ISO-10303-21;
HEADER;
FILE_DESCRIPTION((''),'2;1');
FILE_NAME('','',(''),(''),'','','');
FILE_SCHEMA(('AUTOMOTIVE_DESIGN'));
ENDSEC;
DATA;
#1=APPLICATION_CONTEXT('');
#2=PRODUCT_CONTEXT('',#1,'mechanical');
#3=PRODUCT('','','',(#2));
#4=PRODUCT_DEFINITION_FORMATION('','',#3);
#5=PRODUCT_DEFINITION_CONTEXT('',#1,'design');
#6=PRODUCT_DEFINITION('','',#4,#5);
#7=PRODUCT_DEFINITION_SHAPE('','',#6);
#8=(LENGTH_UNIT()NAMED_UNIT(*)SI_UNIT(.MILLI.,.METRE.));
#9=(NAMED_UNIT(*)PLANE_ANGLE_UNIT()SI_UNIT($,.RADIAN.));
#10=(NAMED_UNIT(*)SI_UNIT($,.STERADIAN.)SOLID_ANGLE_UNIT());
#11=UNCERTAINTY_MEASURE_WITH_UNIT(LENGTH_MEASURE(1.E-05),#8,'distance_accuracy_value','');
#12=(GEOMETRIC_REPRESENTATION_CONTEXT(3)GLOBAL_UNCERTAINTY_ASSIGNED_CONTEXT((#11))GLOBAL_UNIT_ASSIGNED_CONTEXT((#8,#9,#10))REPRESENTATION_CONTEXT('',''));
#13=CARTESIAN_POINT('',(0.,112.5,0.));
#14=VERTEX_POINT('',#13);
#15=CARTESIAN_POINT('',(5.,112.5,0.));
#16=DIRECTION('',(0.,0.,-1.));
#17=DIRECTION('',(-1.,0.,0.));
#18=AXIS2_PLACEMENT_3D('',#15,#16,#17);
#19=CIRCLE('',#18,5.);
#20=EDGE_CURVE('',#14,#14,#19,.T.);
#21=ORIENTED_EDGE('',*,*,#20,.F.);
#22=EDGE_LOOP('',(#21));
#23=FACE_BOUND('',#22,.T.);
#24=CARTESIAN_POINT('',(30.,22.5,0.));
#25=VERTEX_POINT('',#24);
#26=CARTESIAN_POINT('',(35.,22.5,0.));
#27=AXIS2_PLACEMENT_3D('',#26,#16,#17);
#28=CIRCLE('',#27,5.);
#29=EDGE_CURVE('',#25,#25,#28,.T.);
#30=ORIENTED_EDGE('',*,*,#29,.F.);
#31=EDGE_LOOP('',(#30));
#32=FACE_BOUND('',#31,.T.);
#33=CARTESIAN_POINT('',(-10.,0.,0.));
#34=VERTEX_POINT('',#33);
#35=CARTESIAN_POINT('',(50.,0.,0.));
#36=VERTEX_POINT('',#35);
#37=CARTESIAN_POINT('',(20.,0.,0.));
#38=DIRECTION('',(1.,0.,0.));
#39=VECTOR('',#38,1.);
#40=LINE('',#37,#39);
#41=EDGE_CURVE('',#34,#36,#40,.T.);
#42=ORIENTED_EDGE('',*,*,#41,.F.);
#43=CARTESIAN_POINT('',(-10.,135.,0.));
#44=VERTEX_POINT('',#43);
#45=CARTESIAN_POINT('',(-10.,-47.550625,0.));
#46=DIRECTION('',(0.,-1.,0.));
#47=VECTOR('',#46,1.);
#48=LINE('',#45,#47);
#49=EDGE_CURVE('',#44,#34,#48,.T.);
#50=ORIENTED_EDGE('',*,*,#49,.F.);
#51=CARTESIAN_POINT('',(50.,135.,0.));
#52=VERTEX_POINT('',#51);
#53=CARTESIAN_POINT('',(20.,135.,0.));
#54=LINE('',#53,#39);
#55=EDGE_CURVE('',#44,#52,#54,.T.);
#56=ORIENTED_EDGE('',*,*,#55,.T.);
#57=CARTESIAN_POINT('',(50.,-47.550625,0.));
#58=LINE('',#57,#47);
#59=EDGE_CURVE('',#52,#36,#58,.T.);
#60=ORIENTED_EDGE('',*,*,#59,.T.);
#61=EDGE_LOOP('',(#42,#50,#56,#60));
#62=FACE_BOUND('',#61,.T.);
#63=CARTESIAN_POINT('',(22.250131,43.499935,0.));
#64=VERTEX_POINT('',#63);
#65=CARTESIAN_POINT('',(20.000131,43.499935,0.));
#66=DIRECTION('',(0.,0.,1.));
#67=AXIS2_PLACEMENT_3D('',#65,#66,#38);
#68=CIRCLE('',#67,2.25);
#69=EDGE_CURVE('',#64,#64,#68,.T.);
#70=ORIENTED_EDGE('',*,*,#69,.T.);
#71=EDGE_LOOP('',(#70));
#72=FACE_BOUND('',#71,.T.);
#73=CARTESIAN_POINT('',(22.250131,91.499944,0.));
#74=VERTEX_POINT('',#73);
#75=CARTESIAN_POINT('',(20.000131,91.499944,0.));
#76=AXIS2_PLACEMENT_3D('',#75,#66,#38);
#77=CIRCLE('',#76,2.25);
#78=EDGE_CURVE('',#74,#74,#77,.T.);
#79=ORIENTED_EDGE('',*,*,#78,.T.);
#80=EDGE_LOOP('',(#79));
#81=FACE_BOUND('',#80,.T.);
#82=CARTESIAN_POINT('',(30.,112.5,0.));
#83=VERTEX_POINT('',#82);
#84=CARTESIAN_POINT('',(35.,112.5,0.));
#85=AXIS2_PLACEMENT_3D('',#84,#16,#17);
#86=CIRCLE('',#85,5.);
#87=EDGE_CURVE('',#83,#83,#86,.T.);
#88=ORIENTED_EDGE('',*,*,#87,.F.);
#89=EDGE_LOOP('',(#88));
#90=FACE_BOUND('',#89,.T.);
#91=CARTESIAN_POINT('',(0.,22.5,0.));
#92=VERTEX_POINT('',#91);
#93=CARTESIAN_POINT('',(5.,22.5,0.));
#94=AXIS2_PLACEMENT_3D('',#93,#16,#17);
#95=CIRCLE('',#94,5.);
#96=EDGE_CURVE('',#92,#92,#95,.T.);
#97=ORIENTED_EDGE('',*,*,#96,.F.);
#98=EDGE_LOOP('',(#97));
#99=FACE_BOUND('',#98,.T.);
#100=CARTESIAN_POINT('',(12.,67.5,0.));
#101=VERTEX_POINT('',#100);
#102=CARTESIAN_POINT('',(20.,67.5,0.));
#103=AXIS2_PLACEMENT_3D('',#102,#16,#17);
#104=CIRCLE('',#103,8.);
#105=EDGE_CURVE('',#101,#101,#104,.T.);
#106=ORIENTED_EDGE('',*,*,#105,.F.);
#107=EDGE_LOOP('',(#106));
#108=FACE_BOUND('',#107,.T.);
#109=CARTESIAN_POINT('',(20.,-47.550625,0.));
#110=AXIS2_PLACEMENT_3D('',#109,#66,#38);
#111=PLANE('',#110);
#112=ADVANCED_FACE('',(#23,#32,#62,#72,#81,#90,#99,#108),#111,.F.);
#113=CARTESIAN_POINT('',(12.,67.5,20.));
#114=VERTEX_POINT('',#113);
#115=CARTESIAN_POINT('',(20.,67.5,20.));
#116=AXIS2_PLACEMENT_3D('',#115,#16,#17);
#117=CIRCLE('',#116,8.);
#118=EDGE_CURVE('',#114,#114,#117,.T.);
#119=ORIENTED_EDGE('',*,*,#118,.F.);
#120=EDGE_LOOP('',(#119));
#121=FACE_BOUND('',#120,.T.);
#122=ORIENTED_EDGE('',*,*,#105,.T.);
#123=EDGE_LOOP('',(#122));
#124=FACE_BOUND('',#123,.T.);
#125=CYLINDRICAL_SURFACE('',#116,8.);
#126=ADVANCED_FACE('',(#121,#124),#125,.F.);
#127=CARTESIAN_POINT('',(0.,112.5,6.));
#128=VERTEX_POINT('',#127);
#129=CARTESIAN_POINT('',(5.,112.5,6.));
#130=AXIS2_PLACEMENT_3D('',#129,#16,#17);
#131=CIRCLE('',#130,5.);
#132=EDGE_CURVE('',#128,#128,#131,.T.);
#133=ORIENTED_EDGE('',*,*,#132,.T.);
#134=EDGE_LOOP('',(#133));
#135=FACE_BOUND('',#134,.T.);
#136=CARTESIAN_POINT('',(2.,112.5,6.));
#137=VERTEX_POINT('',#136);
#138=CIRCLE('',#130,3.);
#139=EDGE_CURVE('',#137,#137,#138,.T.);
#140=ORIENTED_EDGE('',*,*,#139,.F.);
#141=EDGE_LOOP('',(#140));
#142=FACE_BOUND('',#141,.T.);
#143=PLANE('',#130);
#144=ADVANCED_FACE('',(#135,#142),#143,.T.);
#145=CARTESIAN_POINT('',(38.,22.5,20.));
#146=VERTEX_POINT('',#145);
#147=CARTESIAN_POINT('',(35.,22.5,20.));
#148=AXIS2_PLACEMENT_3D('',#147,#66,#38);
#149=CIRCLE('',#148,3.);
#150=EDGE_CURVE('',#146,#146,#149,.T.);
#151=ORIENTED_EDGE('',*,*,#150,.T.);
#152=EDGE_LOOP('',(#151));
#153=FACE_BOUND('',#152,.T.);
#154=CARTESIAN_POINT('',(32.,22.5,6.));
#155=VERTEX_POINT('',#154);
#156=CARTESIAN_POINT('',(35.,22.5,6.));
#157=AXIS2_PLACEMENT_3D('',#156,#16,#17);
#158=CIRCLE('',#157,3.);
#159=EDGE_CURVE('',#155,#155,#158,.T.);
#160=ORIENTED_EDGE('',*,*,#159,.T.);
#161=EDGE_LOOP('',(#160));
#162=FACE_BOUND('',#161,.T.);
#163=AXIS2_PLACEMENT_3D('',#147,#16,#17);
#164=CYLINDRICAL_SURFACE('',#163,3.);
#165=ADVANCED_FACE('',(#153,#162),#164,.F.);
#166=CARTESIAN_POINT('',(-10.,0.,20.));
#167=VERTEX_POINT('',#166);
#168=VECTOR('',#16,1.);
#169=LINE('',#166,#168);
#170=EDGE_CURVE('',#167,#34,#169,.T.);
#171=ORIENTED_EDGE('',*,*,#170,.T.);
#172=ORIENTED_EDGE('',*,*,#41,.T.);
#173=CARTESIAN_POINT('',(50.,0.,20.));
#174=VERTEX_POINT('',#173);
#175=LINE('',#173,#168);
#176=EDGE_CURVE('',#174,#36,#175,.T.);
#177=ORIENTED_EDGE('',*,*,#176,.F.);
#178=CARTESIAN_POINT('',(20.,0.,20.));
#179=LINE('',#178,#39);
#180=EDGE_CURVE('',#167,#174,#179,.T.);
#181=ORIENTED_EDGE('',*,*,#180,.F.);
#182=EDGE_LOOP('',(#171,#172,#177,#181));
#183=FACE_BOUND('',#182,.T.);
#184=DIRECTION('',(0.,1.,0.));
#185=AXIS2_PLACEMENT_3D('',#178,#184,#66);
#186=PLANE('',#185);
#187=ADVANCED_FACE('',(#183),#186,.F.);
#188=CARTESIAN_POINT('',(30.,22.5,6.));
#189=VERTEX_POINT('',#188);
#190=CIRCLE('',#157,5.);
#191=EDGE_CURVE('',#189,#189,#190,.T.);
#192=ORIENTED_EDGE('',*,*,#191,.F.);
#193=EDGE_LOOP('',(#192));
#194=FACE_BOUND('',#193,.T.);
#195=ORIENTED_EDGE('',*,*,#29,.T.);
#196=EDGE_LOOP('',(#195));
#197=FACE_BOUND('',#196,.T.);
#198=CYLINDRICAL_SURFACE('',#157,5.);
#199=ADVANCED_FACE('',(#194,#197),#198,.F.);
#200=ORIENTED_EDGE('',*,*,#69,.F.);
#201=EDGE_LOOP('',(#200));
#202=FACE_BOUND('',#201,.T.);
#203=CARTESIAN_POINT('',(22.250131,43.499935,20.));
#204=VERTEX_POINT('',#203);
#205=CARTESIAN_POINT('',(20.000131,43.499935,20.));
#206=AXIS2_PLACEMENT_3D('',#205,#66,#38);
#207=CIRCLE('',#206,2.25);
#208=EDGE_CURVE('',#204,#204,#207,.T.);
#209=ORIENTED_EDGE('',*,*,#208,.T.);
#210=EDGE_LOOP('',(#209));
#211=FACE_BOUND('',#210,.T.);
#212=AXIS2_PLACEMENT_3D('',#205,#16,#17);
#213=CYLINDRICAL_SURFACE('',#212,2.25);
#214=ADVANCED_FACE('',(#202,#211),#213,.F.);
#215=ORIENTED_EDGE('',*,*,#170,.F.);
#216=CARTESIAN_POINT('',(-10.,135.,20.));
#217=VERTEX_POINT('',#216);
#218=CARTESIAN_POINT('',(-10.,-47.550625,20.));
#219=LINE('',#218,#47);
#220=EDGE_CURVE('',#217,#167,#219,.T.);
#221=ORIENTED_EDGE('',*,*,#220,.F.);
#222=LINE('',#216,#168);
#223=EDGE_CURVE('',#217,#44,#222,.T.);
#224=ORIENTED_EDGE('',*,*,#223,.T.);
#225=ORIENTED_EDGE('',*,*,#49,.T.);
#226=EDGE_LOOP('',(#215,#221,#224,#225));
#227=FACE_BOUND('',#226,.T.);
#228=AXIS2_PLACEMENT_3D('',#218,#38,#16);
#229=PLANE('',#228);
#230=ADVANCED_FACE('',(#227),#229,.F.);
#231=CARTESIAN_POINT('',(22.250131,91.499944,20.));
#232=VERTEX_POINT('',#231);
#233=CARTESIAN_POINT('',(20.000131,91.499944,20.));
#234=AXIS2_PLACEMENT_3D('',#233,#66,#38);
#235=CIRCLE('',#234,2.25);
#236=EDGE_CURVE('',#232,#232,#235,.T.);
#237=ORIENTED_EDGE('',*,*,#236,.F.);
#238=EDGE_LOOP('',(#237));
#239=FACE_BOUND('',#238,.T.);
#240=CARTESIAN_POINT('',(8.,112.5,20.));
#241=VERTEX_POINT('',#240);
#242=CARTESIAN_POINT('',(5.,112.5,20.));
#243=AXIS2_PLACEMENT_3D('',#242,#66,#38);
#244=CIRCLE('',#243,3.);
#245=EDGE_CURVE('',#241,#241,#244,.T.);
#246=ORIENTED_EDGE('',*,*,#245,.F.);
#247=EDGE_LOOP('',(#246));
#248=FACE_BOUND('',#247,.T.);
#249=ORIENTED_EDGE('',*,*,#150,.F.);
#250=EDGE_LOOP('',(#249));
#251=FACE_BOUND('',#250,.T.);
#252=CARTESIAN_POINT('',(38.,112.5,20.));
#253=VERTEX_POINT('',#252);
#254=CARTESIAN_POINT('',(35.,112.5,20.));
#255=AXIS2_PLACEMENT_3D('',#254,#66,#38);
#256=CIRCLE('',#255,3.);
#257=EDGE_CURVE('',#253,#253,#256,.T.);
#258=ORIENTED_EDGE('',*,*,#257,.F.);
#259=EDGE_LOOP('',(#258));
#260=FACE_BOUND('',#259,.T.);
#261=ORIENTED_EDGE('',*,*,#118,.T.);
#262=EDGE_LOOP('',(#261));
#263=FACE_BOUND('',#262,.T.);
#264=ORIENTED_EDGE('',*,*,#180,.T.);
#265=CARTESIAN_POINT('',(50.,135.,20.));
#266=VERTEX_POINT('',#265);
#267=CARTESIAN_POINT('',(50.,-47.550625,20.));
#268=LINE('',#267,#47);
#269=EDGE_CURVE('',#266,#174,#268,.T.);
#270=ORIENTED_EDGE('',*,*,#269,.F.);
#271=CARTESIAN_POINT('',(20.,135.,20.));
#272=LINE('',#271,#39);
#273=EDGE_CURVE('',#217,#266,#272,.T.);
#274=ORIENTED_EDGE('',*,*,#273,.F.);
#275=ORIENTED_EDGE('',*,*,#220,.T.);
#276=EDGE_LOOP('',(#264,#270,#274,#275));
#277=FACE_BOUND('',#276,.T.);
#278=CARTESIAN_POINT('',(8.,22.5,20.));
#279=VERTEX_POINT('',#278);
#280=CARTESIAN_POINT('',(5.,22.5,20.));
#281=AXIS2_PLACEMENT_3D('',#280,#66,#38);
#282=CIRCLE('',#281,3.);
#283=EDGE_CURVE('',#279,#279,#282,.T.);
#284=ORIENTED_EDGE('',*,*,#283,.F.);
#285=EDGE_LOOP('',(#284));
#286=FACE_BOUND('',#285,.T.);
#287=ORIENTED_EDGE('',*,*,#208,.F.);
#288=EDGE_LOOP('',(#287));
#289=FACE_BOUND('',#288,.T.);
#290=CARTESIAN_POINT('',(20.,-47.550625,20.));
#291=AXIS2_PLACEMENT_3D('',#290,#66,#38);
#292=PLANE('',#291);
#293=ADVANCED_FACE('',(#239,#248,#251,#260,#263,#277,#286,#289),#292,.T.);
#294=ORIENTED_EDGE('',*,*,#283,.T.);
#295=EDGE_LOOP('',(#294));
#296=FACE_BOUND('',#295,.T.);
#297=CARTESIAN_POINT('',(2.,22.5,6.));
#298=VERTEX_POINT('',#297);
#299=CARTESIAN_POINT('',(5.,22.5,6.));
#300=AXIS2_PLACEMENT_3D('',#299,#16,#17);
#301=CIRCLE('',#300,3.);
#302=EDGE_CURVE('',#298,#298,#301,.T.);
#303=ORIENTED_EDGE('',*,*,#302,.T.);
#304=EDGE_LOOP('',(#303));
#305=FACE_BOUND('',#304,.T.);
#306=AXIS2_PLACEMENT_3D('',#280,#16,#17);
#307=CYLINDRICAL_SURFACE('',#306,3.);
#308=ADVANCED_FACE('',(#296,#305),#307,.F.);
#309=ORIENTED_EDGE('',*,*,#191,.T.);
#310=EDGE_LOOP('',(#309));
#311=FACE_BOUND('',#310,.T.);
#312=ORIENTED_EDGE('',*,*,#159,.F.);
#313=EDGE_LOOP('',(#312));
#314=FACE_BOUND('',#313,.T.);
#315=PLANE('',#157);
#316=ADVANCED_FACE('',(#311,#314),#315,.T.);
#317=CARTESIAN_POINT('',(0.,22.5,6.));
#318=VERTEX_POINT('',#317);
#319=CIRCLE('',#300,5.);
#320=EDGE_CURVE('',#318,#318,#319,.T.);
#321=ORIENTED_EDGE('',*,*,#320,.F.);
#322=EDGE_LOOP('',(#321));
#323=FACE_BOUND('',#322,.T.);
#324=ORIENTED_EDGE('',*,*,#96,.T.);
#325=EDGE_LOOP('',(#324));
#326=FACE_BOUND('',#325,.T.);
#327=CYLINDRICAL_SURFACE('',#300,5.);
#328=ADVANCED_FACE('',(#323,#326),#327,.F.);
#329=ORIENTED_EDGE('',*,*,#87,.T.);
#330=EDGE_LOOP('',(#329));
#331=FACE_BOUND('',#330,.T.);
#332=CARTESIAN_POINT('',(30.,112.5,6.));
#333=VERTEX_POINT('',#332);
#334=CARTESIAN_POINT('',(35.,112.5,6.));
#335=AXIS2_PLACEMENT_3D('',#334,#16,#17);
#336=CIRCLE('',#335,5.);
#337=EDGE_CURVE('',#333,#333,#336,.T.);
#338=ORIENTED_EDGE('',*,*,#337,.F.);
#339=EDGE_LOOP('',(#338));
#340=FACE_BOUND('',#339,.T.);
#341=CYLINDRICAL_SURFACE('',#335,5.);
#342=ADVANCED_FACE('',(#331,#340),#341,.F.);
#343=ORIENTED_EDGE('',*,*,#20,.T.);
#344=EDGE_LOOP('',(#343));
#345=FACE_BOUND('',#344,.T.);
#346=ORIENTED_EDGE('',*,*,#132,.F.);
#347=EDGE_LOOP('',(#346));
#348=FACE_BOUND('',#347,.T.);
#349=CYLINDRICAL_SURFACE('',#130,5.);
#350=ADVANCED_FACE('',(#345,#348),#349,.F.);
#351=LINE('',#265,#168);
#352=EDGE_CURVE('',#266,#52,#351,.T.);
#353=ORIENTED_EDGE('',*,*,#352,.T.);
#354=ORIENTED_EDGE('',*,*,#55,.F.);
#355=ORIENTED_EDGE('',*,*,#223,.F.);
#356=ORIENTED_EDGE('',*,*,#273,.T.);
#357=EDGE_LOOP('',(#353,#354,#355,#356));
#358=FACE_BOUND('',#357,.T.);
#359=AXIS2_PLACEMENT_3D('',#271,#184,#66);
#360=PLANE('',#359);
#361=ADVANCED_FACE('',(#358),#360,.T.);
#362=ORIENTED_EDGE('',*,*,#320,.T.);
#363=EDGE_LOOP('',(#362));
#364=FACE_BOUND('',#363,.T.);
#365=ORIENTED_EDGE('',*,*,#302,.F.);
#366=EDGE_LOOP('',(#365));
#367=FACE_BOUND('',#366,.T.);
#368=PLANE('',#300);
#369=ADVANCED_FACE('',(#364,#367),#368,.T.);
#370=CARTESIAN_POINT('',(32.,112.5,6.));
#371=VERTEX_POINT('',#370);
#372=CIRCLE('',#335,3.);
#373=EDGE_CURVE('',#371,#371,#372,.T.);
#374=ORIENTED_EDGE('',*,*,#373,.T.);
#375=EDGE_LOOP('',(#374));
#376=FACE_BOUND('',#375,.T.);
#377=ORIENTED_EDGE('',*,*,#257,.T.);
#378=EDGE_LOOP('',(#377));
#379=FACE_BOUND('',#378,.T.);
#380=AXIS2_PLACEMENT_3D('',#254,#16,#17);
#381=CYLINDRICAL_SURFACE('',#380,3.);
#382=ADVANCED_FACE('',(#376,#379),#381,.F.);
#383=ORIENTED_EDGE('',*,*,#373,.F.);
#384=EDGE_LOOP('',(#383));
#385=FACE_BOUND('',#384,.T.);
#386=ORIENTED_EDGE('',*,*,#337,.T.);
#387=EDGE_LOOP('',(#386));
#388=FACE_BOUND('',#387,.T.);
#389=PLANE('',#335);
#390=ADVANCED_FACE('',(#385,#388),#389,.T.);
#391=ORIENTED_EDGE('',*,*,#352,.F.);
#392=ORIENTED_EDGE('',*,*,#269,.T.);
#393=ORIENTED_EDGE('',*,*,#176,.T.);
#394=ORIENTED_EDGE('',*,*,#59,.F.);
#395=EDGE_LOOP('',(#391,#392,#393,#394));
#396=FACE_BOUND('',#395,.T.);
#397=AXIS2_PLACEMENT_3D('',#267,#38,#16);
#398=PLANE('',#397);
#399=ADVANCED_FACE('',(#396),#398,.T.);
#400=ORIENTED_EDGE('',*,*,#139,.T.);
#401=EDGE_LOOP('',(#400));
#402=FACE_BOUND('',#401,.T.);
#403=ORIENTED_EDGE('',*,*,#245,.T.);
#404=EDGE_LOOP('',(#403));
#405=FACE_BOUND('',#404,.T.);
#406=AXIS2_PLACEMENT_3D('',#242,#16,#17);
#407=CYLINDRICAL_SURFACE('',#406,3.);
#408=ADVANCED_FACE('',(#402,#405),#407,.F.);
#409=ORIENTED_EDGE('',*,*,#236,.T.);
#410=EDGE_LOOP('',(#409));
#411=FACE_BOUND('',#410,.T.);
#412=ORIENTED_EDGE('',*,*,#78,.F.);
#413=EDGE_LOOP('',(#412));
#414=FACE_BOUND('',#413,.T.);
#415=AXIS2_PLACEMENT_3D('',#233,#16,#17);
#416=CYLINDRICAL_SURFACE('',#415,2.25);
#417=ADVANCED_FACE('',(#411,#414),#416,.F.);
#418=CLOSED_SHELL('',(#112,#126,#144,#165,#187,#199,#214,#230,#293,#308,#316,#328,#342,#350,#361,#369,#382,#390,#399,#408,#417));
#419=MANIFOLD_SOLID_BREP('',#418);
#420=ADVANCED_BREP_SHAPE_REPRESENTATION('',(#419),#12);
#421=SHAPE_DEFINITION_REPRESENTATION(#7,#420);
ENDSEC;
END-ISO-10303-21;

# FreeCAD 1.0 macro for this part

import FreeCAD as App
import Part
import Sketcher

V = App.Vector
Q = App.Units.Quantity

doc = App.newDocument("Part")
body = doc.addObject("PartDesign::Body", "Body")

# Sketch on XY plane
sketch1 = body.newObject("Sketcher::SketchObject", "Sketch")
sketch1.AttachmentSupport = (doc.getObject("XY_Plane"), [""])
sketch1.MapMode = "FlatFace"
sketch1.addGeometry([
    Part.LineSegment(V(-10, 135, 0), V(-10, 0, 0)),  # 0
    Part.LineSegment(V(-10, 0, 0), V(50, 0, 0)),  # 1
    Part.LineSegment(V(50, 0, 0), V(50, 135, 0)),  # 2
    Part.LineSegment(V(50, 135, 0), V(-10, 135, 0)),  # 3
    Part.Circle(V(5, 22.5, 0), V(0, 0, 1), 3),  # 4
    Part.Circle(V(20.000131, 43.499935, 0), V(0, 0, 1), 2.25),  # 5
    Part.Circle(V(35, 22.5, 0), V(0, 0, 1), 3),  # 6
    Part.Circle(V(5, 112.5, 0), V(0, 0, 1), 3),  # 7
    Part.Circle(V(20.000131, 91.499944, 0), V(0, 0, 1), 2.25),  # 8
    Part.Circle(V(35, 112.5, 0), V(0, 0, 1), 3),  # 9
], False)
sketch1.addConstraint([
    Sketcher.Constraint("Coincident", 0, 2, 1, 1),
    Sketcher.Constraint("Coincident", 1, 2, 2, 1),
    Sketcher.Constraint("Coincident", 2, 2, 3, 1),
    Sketcher.Constraint("Coincident", 3, 2, 0, 1),
    Sketcher.Constraint("Vertical", 0),
    Sketcher.Constraint("Horizontal", 1),
    Sketcher.Constraint("Vertical", 2),
    Sketcher.Constraint("Horizontal", 3),
    Sketcher.Constraint("Equal", 4, 6),
    Sketcher.Constraint("Equal", 6, 7),
    Sketcher.Constraint("Equal", 5, 8),
    Sketcher.Constraint("Equal", 7, 9),
    Sketcher.Constraint("PointOnObject", 0, 2, -1),
    Sketcher.Constraint("Horizontal", 4, 3, 6, 3),
    Sketcher.Constraint("Horizontal", 7, 3, 9, 3),
    Sketcher.Constraint("Vertical", 4, 3, 7, 3),
    Sketcher.Constraint("Vertical", 5, 3, 8, 3),
    Sketcher.Constraint("Vertical", 6, 3, 9, 3),
    Sketcher.Constraint("Diameter", 4, Q("6 mm")),
    Sketcher.Constraint("Diameter", 5, Q("4.5 mm")),
    Sketcher.Constraint("DistanceX", 1, 1, 1, 2, Q("60 mm")),
    Sketcher.Constraint("DistanceY", 0, 2, 0, 1, Q("135 mm")),
    Sketcher.Constraint("DistanceX", -1, 1, 4, 3, Q("5 mm")),
    Sketcher.Constraint("DistanceX", -1, 1, 6, 3, Q("35 mm")),
    Sketcher.Constraint("DistanceX", 0, 2, -1, 1, Q("10 mm")),
    Sketcher.Constraint("DistanceY", 4, 3, 7, 3, Q("90 mm")),
    Sketcher.Constraint("DistanceY", -1, 1, 4, 3, Q("22.5 mm")),
    Sketcher.Constraint("DistanceX", -1, 1, 5, 3, Q("20.000131 mm")),
    Sketcher.Constraint("DistanceY", 5, 3, 8, 3, Q("48.000009 mm")),
    Sketcher.Constraint("DistanceY", -1, 1, 5, 3, Q("43.499935 mm")),
])
pad1 = body.newObject("PartDesign::Pad", "Pad")
pad1.Profile = sketch1
pad1.Length = 20

# Sketch on XY plane
sketch2 = body.newObject("Sketcher::SketchObject", "Sketch001")
sketch2.AttachmentSupport = (doc.getObject("XY_Plane"), [""])
sketch2.MapMode = "FlatFace"
sketch2.addGeometry([
    Part.Circle(V(35, 112.5, 0), V(0, 0, 1), 5),
    Part.Circle(V(5, 112.5, 0), V(0, 0, 1), 5),
    Part.Circle(V(35, 22.5, 0), V(0, 0, 1), 5),
    Part.Circle(V(5, 22.5, 0), V(0, 0, 1), 5),
], False)
sketch2.addConstraint([
    Sketcher.Constraint("Equal", 0, 1),
    Sketcher.Constraint("Equal", 1, 2),
    Sketcher.Constraint("Equal", 2, 3),
    Sketcher.Constraint("Horizontal", 0, 3, 1, 3),
    Sketcher.Constraint("Horizontal", 2, 3, 3, 3),
    Sketcher.Constraint("Vertical", 0, 3, 2, 3),
    Sketcher.Constraint("Vertical", 1, 3, 3, 3),
    Sketcher.Constraint("Diameter", 0, Q("10 mm")),
    Sketcher.Constraint("DistanceX", -1, 1, 0, 3, Q("35 mm")),
    Sketcher.Constraint("DistanceX", -1, 1, 1, 3, Q("5 mm")),
    Sketcher.Constraint("DistanceY", 2, 3, 0, 3, Q("90 mm")),
    Sketcher.Constraint("DistanceY", -1, 1, 0, 3, Q("112.5 mm")),
])
pocket1 = body.newObject("PartDesign::Pocket", "Pocket")
pocket1.Profile = sketch2
pocket1.Length = 6
pocket1.Reversed = True

# Sketch on XY plane
sketch3 = body.newObject("Sketcher::SketchObject", "Sketch002")
sketch3.AttachmentSupport = (doc.getObject("XY_Plane"), [""])
sketch3.MapMode = "FlatFace"
sketch3.addGeometry(Part.Circle(V(20, 67.5, 0), V(0, 0, 1), 8), False)
sketch3.addConstraint([
    Sketcher.Constraint("Diameter", 0, Q("16 mm")),
    Sketcher.Constraint("DistanceX", -1, 1, 0, 3, Q("20 mm")),
    Sketcher.Constraint("DistanceY", -1, 1, 0, 3, Q("67.5 mm")),
])
pocket2 = body.newObject("PartDesign::Pocket", "Pocket001")
pocket2.Profile = sketch3
pocket2.Length = 20
pocket2.Reversed = True

# Sketch on XY plane
sketch4 = body.newObject("Sketcher::SketchObject", "Sketch003")
sketch4.AttachmentSupport = (doc.getObject("XY_Plane"), [""])
sketch4.MapMode = "FlatFace"
sketch4.addGeometry([
    Part.LineSegment(V(50, 135, 0), V(50, 0, 0)),  # 0
    Part.LineSegment(V(50, 0, 0), V(40, 0, 0)),  # 1
    Part.LineSegment(V(40, 0, 0), V(40, 135, 0)),  # 2
    Part.LineSegment(V(40, 135, 0), V(50, 135, 0)),  # 3
    Part.LineSegment(V(0, 135, 0), V(0, 0, 0)),  # 4
    Part.LineSegment(V(0, 0, 0), V(-10, 0, 0)),  # 5
    Part.LineSegment(V(-10, 0, 0), V(-10, 135, 0)),  # 6
    Part.LineSegment(V(-10, 135, 0), V(0, 135, 0)),  # 7
], False)
sketch4.addConstraint([
    Sketcher.Constraint("Coincident", 0, 2, 1, 1),
    Sketcher.Constraint("Coincident", 1, 2, 2, 1),
    Sketcher.Constraint("Coincident", 2, 2, 3, 1),
    Sketcher.Constraint("Coincident", 3, 2, 0, 1),
    Sketcher.Constraint("Coincident", 4, 2, 5, 1),
    Sketcher.Constraint("Coincident", 5, 2, 6, 1),
    Sketcher.Constraint("Coincident", 6, 2, 7, 1),
    Sketcher.Constraint("Coincident", 7, 2, 4, 1),
    Sketcher.Constraint("Vertical", 0),
    Sketcher.Constraint("Horizontal", 1),
    Sketcher.Constraint("Vertical", 2),
    Sketcher.Constraint("Horizontal", 3),
    Sketcher.Constraint("Vertical", 4),
    Sketcher.Constraint("Horizontal", 5),
    Sketcher.Constraint("Vertical", 6),
    Sketcher.Constraint("Horizontal", 7),
    Sketcher.Constraint("Coincident", 4, 2, -1, 1),
    Sketcher.Constraint("PointOnObject", 0, 2, -1),
    Sketcher.Constraint("Horizontal", 3, 2, 6, 2),
    Sketcher.Constraint("Equal", 3, 5),
    Sketcher.Constraint("DistanceX", 1, 2, 1, 1, Q("10 mm")),
    Sketcher.Constraint("DistanceY", 0, 2, 0, 1, Q("135 mm")),
    Sketcher.Constraint("DistanceX", -1, 1, 0, 2, Q("50 mm")),
])
pad2 = body.newObject("PartDesign::Pad", "Pad001")
pad2.Profile = sketch4
pad2.Length = 20

doc.recompute()
